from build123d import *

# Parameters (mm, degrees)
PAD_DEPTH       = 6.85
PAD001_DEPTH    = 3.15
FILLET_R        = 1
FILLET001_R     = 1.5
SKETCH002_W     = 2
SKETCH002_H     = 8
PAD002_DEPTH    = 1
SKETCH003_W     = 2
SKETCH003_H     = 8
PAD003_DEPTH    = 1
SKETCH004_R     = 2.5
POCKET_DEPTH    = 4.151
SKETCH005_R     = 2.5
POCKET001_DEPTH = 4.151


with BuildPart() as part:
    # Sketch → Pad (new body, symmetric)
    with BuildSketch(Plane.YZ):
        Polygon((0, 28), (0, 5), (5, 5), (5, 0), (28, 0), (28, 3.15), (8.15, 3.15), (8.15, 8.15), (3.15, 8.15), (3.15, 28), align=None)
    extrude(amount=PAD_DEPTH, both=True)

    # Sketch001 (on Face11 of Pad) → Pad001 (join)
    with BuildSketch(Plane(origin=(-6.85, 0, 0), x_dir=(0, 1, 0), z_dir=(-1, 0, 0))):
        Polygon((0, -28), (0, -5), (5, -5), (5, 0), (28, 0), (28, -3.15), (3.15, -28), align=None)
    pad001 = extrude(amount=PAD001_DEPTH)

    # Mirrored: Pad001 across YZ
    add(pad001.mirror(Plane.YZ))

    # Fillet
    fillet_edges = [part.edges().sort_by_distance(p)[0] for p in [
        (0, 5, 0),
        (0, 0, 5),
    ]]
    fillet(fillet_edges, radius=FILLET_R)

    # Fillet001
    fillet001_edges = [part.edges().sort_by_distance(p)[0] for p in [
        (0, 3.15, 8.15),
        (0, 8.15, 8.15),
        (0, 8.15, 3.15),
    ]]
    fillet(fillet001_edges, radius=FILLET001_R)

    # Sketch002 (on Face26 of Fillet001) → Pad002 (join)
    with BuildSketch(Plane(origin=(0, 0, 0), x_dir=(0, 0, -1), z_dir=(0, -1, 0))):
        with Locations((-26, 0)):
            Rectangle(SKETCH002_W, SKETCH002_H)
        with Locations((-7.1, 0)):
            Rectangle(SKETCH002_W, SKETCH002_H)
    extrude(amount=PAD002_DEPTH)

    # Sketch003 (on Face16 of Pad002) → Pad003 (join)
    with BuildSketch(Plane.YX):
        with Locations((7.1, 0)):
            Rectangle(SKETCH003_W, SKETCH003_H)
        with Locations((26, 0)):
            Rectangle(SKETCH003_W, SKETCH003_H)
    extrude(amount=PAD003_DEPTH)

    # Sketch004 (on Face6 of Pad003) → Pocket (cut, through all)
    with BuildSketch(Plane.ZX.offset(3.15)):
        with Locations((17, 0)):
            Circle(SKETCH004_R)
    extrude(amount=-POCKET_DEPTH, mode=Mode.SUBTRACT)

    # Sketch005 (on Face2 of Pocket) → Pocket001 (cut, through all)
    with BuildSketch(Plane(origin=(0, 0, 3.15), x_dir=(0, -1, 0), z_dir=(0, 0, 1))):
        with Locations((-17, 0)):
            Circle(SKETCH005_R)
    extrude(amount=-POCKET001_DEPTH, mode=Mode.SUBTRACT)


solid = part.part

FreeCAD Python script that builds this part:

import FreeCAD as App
import Part
import Sketcher

V = App.Vector


def edges_at(feature, points):
    """Names of the edges that pass closest to the given points."""
    edges = feature.Shape.Edges
    near = lambda p: min(range(len(edges)), key=lambda i: edges[i].distToShape(Part.Vertex(*p))[0])
    return sorted({f"Edge{near(p) + 1}" for p in points})


def add_polygon(sketch, points):
    """Adds a closed chain of lines whose ends are joined by coincident constraints."""
    first, n = sketch.GeometryCount, len(points)
    for a, b in zip(points, points[1:] + points[:1]):
        sketch.addGeometry(Part.LineSegment(App.Vector(*a, 0), App.Vector(*b, 0)), False)
    for i in range(n):
        sketch.addConstraint(Sketcher.Constraint("Coincident", first + i, 2, first + (i + 1) % n, 1))

doc = App.newDocument("Part")
body = doc.addObject("PartDesign::Body", "Body")

sketch1 = doc.addObject("Sketcher::SketchObject", "Sketch")
body.addObject(sketch1)
sketch1.AttachmentSupport = (doc.YZ_Plane, [""])
sketch1.MapMode = "FlatFace"
add_polygon(sketch1, [(0, 28), (0, 5), (5, 5), (5, 0), (28, 0), (28, 3.1), (8.2, 3.1), (8.2, 8.2), (3.1, 8.2), (3.1, 28)])
sketch1.addConstraint(Sketcher.Constraint("Vertical", 0))
sketch1.addConstraint(Sketcher.Constraint("Horizontal", 1))
sketch1.addConstraint(Sketcher.Constraint("Vertical", 2))
sketch1.addConstraint(Sketcher.Constraint("Horizontal", 3))
sketch1.addConstraint(Sketcher.Constraint("Vertical", 4))
sketch1.addConstraint(Sketcher.Constraint("Horizontal", 5))
sketch1.addConstraint(Sketcher.Constraint("Vertical", 6))
sketch1.addConstraint(Sketcher.Constraint("Horizontal", 7))
sketch1.addConstraint(Sketcher.Constraint("Vertical", 8))
sketch1.addConstraint(Sketcher.Constraint("Horizontal", 9))
sketch1.addConstraint(Sketcher.Constraint("PointOnObject", 0, 2, -2))
sketch1.addConstraint(Sketcher.Constraint("PointOnObject", 2, 2, -1))
sketch1.addConstraint(Sketcher.Constraint("Equal", 1, 7))
sketch1.addConstraint(Sketcher.Constraint("Equal", 3, 0))
sketch1.addConstraint(Sketcher.Constraint("Equal", 7, 2))
sketch1.addConstraint(Sketcher.Constraint("Equal", 9, 4))
sketch1.addConstraint(Sketcher.Constraint("Equal", 2, 6))
sketch1.addConstraint(Sketcher.Constraint("DistanceX", 1, 1, 1, 2, 5.0))
sketch1.addConstraint(Sketcher.Constraint("DistanceX", 3, 1, 3, 2, 23.0))
sketch1.addConstraint(Sketcher.Constraint("DistanceX", 5, 2, 5, 1, 19.85))
pad1 = doc.addObject("PartDesign::Pad", "Pad")
body.addObject(pad1)
pad1.Profile = sketch1
pad1.Length = 13.7
pad1.Midplane = True

sketch2 = doc.addObject("Sketcher::SketchObject", "Sketch001")
body.addObject(sketch2)
sketch2.AttachmentSupport = (doc.YZ_Plane, [""])
sketch2.MapMode = "FlatFace"
sketch2.AttachmentOffset = App.Placement(V(0, 0, -6.85), App.Rotation())
add_polygon(sketch2, [(0, 5), (0, 28), (3.1, 28), (28, 3.1), (28, 0), (5, 0), (5, 5)])
sketch2.addConstraint(Sketcher.Constraint("Vertical", 0))
sketch2.addConstraint(Sketcher.Constraint("Horizontal", 1))
sketch2.addConstraint(Sketcher.Constraint("Vertical", 3))
sketch2.addConstraint(Sketcher.Constraint("Horizontal", 4))
sketch2.addConstraint(Sketcher.Constraint("Vertical", 5))
sketch2.addConstraint(Sketcher.Constraint("Horizontal", 6))
sketch2.addConstraint(Sketcher.Constraint("PointOnObject", 0, 2, -2))
sketch2.addConstraint(Sketcher.Constraint("PointOnObject", 3, 2, -1))
sketch2.addConstraint(Sketcher.Constraint("Equal", 4, 0))
sketch2.addConstraint(Sketcher.Constraint("Equal", 1, 3))
sketch2.addConstraint(Sketcher.Constraint("Equal", 6, 5))
sketch2.addConstraint(Sketcher.Constraint("DistanceX", 4, 2, 4, 1, 23.0))
sketch2.addConstraint(Sketcher.Constraint("DistanceX", 6, 2, 6, 1, 5.0))
sketch2.addConstraint(Sketcher.Constraint("DistanceX", 1, 1, 1, 2, 3.15))
pad2 = doc.addObject("PartDesign::Pad", "Pad001")
body.addObject(pad2)
pad2.Profile = sketch2
pad2.Length = 3.15
pad2.Reversed = True
doc.recompute()

mirrored = doc.addObject("PartDesign::Mirrored", "Mirrored")
body.addObject(mirrored)
mirrored.Originals = [pad2]
mirrored.MirrorPlane = (doc.YZ_Plane, [""])
body.Tip = mirrored
doc.recompute()

fillet = doc.addObject("PartDesign::Fillet", "Fillet")
body.addObject(fillet)
fillet.Base = (mirrored, edges_at(mirrored, [(0, 5, 0), (0, 0, 5)]))
fillet.Radius = 1
doc.recompute()

fillet2 = doc.addObject("PartDesign::Fillet", "Fillet001")
body.addObject(fillet2)
fillet2.Base = (fillet, edges_at(fillet, [(0, 3.15, 8.15), (0, 8.15, 8.15), (0, 8.15, 3.15)]))
fillet2.Radius = 1.5

sketch3 = doc.addObject("Sketcher::SketchObject", "Sketch002")
body.addObject(sketch3)
sketch3.AttachmentSupport = (doc.XZ_Plane, [""])
sketch3.MapMode = "FlatFace"
add_polygon(sketch3, [(4, 27), (-4, 27), (-4, 25), (4, 25)])
add_polygon(sketch3, [(4, 8.1), (-4, 8.1), (-4, 6.1), (4, 6.1)])
sketch3.addConstraint(Sketcher.Constraint("Horizontal", 0))
sketch3.addConstraint(Sketcher.Constraint("Vertical", 1))
sketch3.addConstraint(Sketcher.Constraint("Horizontal", 2))
sketch3.addConstraint(Sketcher.Constraint("Vertical", 3))
sketch3.addConstraint(Sketcher.Constraint("Horizontal", 4))
sketch3.addConstraint(Sketcher.Constraint("Vertical", 5))
sketch3.addConstraint(Sketcher.Constraint("Horizontal", 6))
sketch3.addConstraint(Sketcher.Constraint("Vertical", 7))
sketch3.addConstraint(Sketcher.Constraint("Vertical", 1, 2, 4, 2))
sketch3.addConstraint(Sketcher.Constraint("Vertical", 3, 2, 6, 2))
sketch3.addConstraint(Sketcher.Constraint("Equal", 3, 5))
sketch3.addConstraint(Sketcher.Constraint("DistanceX", 0, 2, 0, 1, 8.0))
sketch3.addConstraint(Sketcher.Constraint("DistanceY", 1, 2, 1, 1, 2.0))
sketch3.addConstraint(Sketcher.Constraint("DistanceX", 0, 2, -1, 1, 4.0))
sketch3.addConstraint(Sketcher.Constraint("DistanceY", -1, 1, 0, 2, 27.0))
sketch3.addConstraint(Sketcher.Constraint("DistanceY", -1, 1, 4, 2, 8.1))
pad3 = doc.addObject("PartDesign::Pad", "Pad002")
body.addObject(pad3)
pad3.Profile = sketch3
pad3.Length = 1

sketch4 = doc.addObject("Sketcher::SketchObject", "Sketch003")
body.addObject(sketch4)
sketch4.AttachmentSupport = (doc.XY_Plane, [""])
sketch4.MapMode = "FlatFace"
add_polygon(sketch4, [(4, 6.1), (-4, 6.1), (-4, 8.1), (4, 8.1)])
add_polygon(sketch4, [(4, 25), (-4, 25), (-4, 27), (4, 27)])
sketch4.addConstraint(Sketcher.Constraint("Horizontal", 0))
sketch4.addConstraint(Sketcher.Constraint("Vertical", 1))
sketch4.addConstraint(Sketcher.Constraint("Horizontal", 2))
sketch4.addConstraint(Sketcher.Constraint("Vertical", 3))
sketch4.addConstraint(Sketcher.Constraint("Horizontal", 4))
sketch4.addConstraint(Sketcher.Constraint("Vertical", 5))
sketch4.addConstraint(Sketcher.Constraint("Horizontal", 6))
sketch4.addConstraint(Sketcher.Constraint("Vertical", 7))
sketch4.addConstraint(Sketcher.Constraint("Vertical", 1, 2, 4, 2))
sketch4.addConstraint(Sketcher.Constraint("Vertical", 3, 2, 6, 2))
sketch4.addConstraint(Sketcher.Constraint("Equal", 3, 5))
sketch4.addConstraint(Sketcher.Constraint("DistanceX", 0, 2, 0, 1, 8.0))
sketch4.addConstraint(Sketcher.Constraint("DistanceY", 1, 1, 1, 2, 2.0))
sketch4.addConstraint(Sketcher.Constraint("DistanceX", 0, 2, -1, 1, 4.0))
sketch4.addConstraint(Sketcher.Constraint("DistanceY", -1, 1, 4, 2, 25.0))
sketch4.addConstraint(Sketcher.Constraint("DistanceY", -1, 1, 0, 2, 6.1))
pad4 = doc.addObject("PartDesign::Pad", "Pad003")
body.addObject(pad4)
pad4.Profile = sketch4
pad4.Length = 1
pad4.Reversed = True

sketch5 = doc.addObject("Sketcher::SketchObject", "Sketch004")
body.addObject(sketch5)
sketch5.AttachmentSupport = (doc.XZ_Plane, [""])
sketch5.MapMode = "FlatFace"
sketch5.AttachmentOffset = App.Placement(V(0, 0, -3.15), App.Rotation())
sketch5.addGeometry(Part.Circle(V(0, 17, 0), V(0, 0, 1), 2.5), False)
sketch5.addConstraint(Sketcher.Constraint("PointOnObject", 0, 3, -2))
sketch5.addConstraint(Sketcher.Constraint("Diameter", 0, 5.0))
sketch5.addConstraint(Sketcher.Constraint("DistanceY", -1, 1, 0, 3, 17.0))
pocket1 = doc.addObject("PartDesign::Pocket", "Pocket")
body.addObject(pocket1)
pocket1.Profile = sketch5
pocket1.Type = "ThroughAll"
pocket1.Reversed = True

sketch6 = doc.addObject("Sketcher::SketchObject", "Sketch005")
body.addObject(sketch6)
sketch6.AttachmentSupport = (doc.XY_Plane, [""])
sketch6.MapMode = "FlatFace"
sketch6.AttachmentOffset = App.Placement(V(0, 0, 3.15), App.Rotation())
sketch6.addGeometry(Part.Circle(V(0, 17, 0), V(0, 0, 1), 2.5), False)
sketch6.addConstraint(Sketcher.Constraint("PointOnObject", 0, 3, -2))
sketch6.addConstraint(Sketcher.Constraint("Diameter", 0, 5.0))
sketch6.addConstraint(Sketcher.Constraint("DistanceY", -1, 1, 0, 3, 17.0))
pocket2 = doc.addObject("PartDesign::Pocket", "Pocket001")
body.addObject(pocket2)
pocket2.Profile = sketch6
pocket2.Type = "ThroughAll"

doc.recompute()
